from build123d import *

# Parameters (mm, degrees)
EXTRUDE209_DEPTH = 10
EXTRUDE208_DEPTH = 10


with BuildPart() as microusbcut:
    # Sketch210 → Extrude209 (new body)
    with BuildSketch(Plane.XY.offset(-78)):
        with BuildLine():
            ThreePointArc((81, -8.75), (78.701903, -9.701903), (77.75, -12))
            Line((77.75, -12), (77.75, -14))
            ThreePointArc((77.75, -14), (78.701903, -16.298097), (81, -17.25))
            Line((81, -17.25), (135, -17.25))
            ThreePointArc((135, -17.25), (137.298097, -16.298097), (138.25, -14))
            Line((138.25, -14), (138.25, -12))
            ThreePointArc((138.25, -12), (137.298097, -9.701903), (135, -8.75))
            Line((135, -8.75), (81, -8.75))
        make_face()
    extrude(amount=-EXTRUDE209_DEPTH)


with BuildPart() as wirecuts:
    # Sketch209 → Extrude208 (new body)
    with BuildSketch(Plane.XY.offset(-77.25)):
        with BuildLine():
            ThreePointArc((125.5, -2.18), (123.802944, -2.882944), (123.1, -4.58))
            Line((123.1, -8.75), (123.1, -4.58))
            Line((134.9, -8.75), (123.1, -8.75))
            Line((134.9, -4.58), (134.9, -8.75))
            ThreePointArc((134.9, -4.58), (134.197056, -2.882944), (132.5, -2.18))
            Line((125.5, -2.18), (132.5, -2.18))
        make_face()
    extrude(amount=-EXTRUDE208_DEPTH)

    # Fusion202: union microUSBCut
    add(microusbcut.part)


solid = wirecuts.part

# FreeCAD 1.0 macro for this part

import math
import FreeCAD as App
import Part
import Sketcher

V = App.Vector

doc = App.newDocument("Part")
params = doc.addObject("Spreadsheet::Sheet", "Params")
for row, (alias, value) in enumerate([
    ("sketch1_width", "54 mm"),
    ("sketch1_height", "2 mm"),
    ("sketch1_radius", "3.25 mm"),
    ("pad1_length", "10 mm"),
    ("sketch2_radius", "2.400001 mm"),
    ("sketch2_width", "7 mm"),
    ("sketch2_height", "4.17 mm"),
    ("pad2_length", "10 mm"),
], start=1):
    params.set(f"A{row}", alias)
    params.set(f"B{row}", "=" + value)
    params.setAlias(f"B{row}", alias)

body = doc.addObject("PartDesign::Body", "Body")

sketch1 = body.newObject("Sketcher::SketchObject", "Sketch")
sketch1.AttachmentSupport = (doc.getObject("XY_Plane"), [""])
sketch1.MapMode = "FlatFace"
sketch1.AttachmentOffset = App.Placement(V(0, 0, -78), App.Rotation())
sketch1.addGeometry(Part.ArcOfCircle(Part.Circle(V(81, -12, 0), V(0, 0, 1), 3.25), math.radians(90.000002), math.radians(179.999998)), False)
sketch1.addGeometry(Part.LineSegment(V(77.75, -12, 0), V(77.75, -14, 0)), False)
sketch1.addGeometry(Part.ArcOfCircle(Part.Circle(V(81, -14, 0), V(0, 0, 1), 3.25), math.radians(-179.999998), math.radians(-90.000002)), False)
sketch1.addGeometry(Part.LineSegment(V(81, -17.25, 0), V(135, -17.25, 0)), False)
sketch1.addGeometry(Part.ArcOfCircle(Part.Circle(V(135, -14, 0), V(0, 0, 1), 3.25), math.radians(-89.999998), math.radians(-0.000002)), False)
sketch1.addGeometry(Part.LineSegment(V(138.25, -14, 0), V(138.25, -12, 0)), False)
sketch1.addGeometry(Part.ArcOfCircle(Part.Circle(V(135, -12, 0), V(0, 0, 1), 3.25), math.radians(0.000002), math.radians(89.999998)), False)
sketch1.addGeometry(Part.LineSegment(V(135, -8.75, 0), V(81, -8.75, 0)), False)
sketch1.addConstraint(Sketcher.Constraint("Tangent", 0, 2, 1, 1))
sketch1.addConstraint(Sketcher.Constraint("Tangent", 1, 2, 2, 1))
sketch1.addConstraint(Sketcher.Constraint("Tangent", 2, 2, 3, 1))
sketch1.addConstraint(Sketcher.Constraint("Tangent", 3, 2, 4, 1))
sketch1.addConstraint(Sketcher.Constraint("Tangent", 4, 2, 5, 1))
sketch1.addConstraint(Sketcher.Constraint("Tangent", 5, 2, 6, 1))
sketch1.addConstraint(Sketcher.Constraint("Tangent", 6, 2, 7, 1))
sketch1.addConstraint(Sketcher.Constraint("Tangent", 7, 2, 0, 1))
sketch1.addConstraint(Sketcher.Constraint("Vertical", 1))
sketch1.addConstraint(Sketcher.Constraint("Horizontal", 3))
sketch1.addConstraint(Sketcher.Constraint("Vertical", 5))
sketch1.addConstraint(Sketcher.Constraint("Horizontal", 7))
sketch1.addConstraint(Sketcher.Constraint("Equal", 0, 2))
sketch1.addConstraint(Sketcher.Constraint("Equal", 2, 4))
sketch1.addConstraint(Sketcher.Constraint("Equal", 4, 6))
sketch1.addConstraint(Sketcher.Constraint("DistanceX", 3, 1, 3, 2, 54.0))
sketch1.addConstraint(Sketcher.Constraint("DistanceY", 1, 2, 1, 1, 2.0))
sketch1.addConstraint(Sketcher.Constraint("Radius", 0, 3.25))
sketch1.addConstraint(Sketcher.Constraint("DistanceX", -1, 1, 0, 3, 81.0))
sketch1.addConstraint(Sketcher.Constraint("DistanceY", 0, 3, -1, 1, 12.0))
sketch1.setExpression("Constraints[15]", "Params.sketch1_width")
sketch1.setExpression("Constraints[16]", "Params.sketch1_height")
sketch1.setExpression("Constraints[17]", "Params.sketch1_radius")
pad1 = body.newObject("PartDesign::Pad", "Pad")
pad1.Profile = sketch1
pad1.setExpression("Length", "Params.pad1_length")
pad1.Reversed = True
body2 = doc.addObject("PartDesign::Body", "Body001")

sketch2 = body2.newObject("Sketcher::SketchObject", "Sketch001")
sketch2.AttachmentSupport = (doc.getObject("XY_Plane001"), [""])
sketch2.MapMode = "FlatFace"
sketch2.AttachmentOffset = App.Placement(V(0, 0, -77.25), App.Rotation())
sketch2.addGeometry(Part.ArcOfCircle(Part.Circle(V(125.500001, -4.580001, 0), V(0, 0, 1), 2.400001), math.radians(90.000022), math.radians(179.999978)), False)
sketch2.addGeometry(Part.LineSegment(V(123.1, -4.58, 0), V(123.1, -8.75, 0)), False)
sketch2.addGeometry(Part.LineSegment(V(123.1, -8.75, 0), V(134.9, -8.75, 0)), False)
sketch2.addGeometry(Part.LineSegment(V(134.9, -8.75, 0), V(134.9, -4.58, 0)), False)
sketch2.addGeometry(Part.ArcOfCircle(Part.Circle(V(132.499999, -4.580001, 0), V(0, 0, 1), 2.400001), math.radians(0.000022), math.radians(89.999978)), False)
sketch2.addGeometry(Part.LineSegment(V(132.5, -2.18, 0), V(125.5, -2.18, 0)), False)
sketch2.addConstraint(Sketcher.Constraint("Tangent", 0, 2, 1, 1))
sketch2.addConstraint(Sketcher.Constraint("Coincident", 1, 2, 2, 1))
sketch2.addConstraint(Sketcher.Constraint("Coincident", 2, 2, 3, 1))
sketch2.addConstraint(Sketcher.Constraint("Tangent", 3, 2, 4, 1))
sketch2.addConstraint(Sketcher.Constraint("Tangent", 4, 2, 5, 1))
sketch2.addConstraint(Sketcher.Constraint("Tangent", 5, 2, 0, 1))
sketch2.addConstraint(Sketcher.Constraint("Vertical", 1))
sketch2.addConstraint(Sketcher.Constraint("Horizontal", 2))
sketch2.addConstraint(Sketcher.Constraint("Vertical", 3))
sketch2.addConstraint(Sketcher.Constraint("Horizontal", 5))
sketch2.addConstraint(Sketcher.Constraint("Equal", 0, 4))
sketch2.addConstraint(Sketcher.Constraint("Radius", 0, 2.400001))
sketch2.addConstraint(Sketcher.Constraint("DistanceX", 5, 2, 5, 1, 7.0))
sketch2.addConstraint(Sketcher.Constraint("DistanceY", 1, 2, 1, 1, 4.17))
sketch2.addConstraint(Sketcher.Constraint("DistanceX", -1, 1, 0, 3, 125.500001))
sketch2.addConstraint(Sketcher.Constraint("DistanceY", 0, 3, -1, 1, 4.580001))
sketch2.setExpression("Constraints[11]", "Params.sketch2_radius")
sketch2.setExpression("Constraints[12]", "Params.sketch2_width")
sketch2.setExpression("Constraints[13]", "Params.sketch2_height")
pad2 = body2.newObject("PartDesign::Pad", "Pad001")
pad2.Profile = sketch2
pad2.setExpression("Length", "Params.pad2_length")
pad2.Reversed = True
doc.recompute()

boolean = body2.newObject("PartDesign::Boolean", "Boolean")
boolean.Type = "Fuse"
boolean.addObjects([body])

doc.recompute()
